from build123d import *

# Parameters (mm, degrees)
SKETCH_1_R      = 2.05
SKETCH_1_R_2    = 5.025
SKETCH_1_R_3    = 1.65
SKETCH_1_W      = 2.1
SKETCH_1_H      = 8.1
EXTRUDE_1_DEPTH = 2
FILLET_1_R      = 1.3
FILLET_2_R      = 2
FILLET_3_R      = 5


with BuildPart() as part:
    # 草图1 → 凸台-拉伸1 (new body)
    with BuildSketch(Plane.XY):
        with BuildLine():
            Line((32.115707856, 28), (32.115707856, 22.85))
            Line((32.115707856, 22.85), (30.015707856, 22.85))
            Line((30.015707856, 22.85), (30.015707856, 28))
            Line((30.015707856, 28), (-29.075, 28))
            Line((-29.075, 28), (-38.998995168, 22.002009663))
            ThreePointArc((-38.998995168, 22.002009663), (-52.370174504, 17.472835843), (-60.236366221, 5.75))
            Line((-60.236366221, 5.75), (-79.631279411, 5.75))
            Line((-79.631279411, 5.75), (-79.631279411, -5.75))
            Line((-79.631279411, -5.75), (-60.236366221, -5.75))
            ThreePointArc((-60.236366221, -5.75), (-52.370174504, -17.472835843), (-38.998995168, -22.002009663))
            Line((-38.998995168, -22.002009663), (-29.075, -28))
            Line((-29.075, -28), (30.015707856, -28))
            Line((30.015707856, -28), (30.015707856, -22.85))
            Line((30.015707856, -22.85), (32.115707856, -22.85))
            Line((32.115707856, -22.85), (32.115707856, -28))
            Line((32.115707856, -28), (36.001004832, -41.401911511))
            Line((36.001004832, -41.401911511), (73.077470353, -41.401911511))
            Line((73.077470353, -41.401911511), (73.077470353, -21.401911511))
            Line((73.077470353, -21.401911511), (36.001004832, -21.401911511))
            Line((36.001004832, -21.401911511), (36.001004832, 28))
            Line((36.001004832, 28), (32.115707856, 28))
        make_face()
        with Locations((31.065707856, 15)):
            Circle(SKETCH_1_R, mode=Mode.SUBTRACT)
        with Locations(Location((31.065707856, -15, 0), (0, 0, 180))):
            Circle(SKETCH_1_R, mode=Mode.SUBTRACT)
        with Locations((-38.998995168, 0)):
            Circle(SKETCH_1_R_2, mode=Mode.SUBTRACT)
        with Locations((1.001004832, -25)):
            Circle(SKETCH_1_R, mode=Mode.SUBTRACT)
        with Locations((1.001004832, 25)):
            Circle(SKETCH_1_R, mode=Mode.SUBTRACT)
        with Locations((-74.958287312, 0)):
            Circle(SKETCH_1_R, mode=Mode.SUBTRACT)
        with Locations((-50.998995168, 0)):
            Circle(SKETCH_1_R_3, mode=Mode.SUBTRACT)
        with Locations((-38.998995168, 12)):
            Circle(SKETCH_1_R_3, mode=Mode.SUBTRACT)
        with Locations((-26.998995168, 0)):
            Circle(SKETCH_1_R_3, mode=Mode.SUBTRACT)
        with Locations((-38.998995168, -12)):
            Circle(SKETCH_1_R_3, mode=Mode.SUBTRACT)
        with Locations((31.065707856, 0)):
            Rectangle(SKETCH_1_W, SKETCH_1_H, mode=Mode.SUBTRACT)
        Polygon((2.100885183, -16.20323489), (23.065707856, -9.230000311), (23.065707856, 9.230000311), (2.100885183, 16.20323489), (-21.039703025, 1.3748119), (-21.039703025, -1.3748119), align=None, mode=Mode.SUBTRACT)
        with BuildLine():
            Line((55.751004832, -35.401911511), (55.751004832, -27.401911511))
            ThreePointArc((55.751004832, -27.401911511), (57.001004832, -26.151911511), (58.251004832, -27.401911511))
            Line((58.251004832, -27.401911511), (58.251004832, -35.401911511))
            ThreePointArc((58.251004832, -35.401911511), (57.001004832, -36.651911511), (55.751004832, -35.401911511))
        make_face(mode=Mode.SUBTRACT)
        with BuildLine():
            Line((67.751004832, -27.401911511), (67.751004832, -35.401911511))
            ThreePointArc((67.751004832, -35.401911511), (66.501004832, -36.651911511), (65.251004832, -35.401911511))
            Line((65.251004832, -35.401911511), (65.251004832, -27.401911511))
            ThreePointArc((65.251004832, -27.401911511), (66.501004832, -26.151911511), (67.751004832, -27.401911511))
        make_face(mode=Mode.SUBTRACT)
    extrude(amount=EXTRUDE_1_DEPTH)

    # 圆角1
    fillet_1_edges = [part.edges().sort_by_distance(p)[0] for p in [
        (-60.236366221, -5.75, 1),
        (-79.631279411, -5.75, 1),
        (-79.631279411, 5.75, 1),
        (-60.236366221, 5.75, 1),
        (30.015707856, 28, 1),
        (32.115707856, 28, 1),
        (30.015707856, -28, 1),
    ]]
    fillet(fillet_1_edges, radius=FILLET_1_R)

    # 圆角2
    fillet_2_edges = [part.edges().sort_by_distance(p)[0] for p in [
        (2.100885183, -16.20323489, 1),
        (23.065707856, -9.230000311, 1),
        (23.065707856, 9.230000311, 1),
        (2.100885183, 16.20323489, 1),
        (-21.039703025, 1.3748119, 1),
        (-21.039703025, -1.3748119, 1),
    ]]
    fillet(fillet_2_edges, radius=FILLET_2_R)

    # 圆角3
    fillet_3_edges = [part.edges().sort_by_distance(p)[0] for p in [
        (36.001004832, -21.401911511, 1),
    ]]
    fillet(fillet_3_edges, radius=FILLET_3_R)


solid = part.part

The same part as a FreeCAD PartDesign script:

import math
import FreeCAD as App
import Part
import Sketcher
Q = App.Units.Quantity


def edges_at(feature, points):
    """Names of the edges that pass closest to the given points."""
    edges = feature.Shape.Edges
    near = lambda p: min(range(len(edges)), key=lambda i: edges[i].distToShape(Part.Vertex(*p))[0])
    return sorted({f"Edge{near(p) + 1}" for p in points})


def add_polygon(sketch, points):
    """Adds a closed chain of lines whose ends are joined by coincident constraints."""
    first, n = sketch.GeometryCount, len(points)
    for a, b in zip(points, points[1:] + points[:1]):
        sketch.addGeometry(Part.LineSegment(App.Vector(*a, 0), App.Vector(*b, 0)), False)
    for i in range(n):
        sketch.addConstraint(Sketcher.Constraint("Coincident", first + i, 2, first + (i + 1) % n, 1))

doc = App.newDocument("Part")
params = doc.addObject("Spreadsheet::Sheet", "Params")
for row, (alias, value) in enumerate([
    ("sketch1_diameter", "3.3 mm"),
    ("sketch1_diameter2", "4.1 mm"),
    ("sketch1_diameter3", "10.05 mm"),
    ("sketch1_height", "20 mm"),
    ("sketch1_height2", "8 mm"),
    ("pad1_length", "2 mm"),
    ("fillet_radius", "1.3 mm"),
    ("fillet2_radius", "2 mm"),
    ("fillet3_radius", "5 mm"),
], start=1):
    params.set(f"A{row}", alias)
    params.set(f"B{row}", "=" + value)
    params.setAlias(f"B{row}", alias)

body = doc.addObject("PartDesign::Body", "Body")

# Sketch on XY plane
sketch1 = body.newObject("Sketcher::SketchObject", "Sketch")
sketch1.AttachmentSupport = (doc.getObject("XY_Plane"), [""])
sketch1.MapMode = "FlatFace"
sketch1.addGeometry(Part.LineSegment(App.Vector(32.115708, 28, 0), App.Vector(32.115708, 22.85, 0)), False)  # 0
sketch1.addGeometry(Part.LineSegment(App.Vector(32.115708, 22.85, 0), App.Vector(30.015708, 22.85, 0)), False)  # 1
sketch1.addGeometry(Part.LineSegment(App.Vector(30.015708, 22.85, 0), App.Vector(30.015708, 28, 0)), False)  # 2
sketch1.addGeometry(Part.LineSegment(App.Vector(30.015708, 28, 0), App.Vector(-29.075, 28, 0)), False)  # 3
sketch1.addGeometry(Part.LineSegment(App.Vector(-29.075, 28, 0), App.Vector(-38.998995, 22.00201, 0)), False)  # 4
sketch1.addGeometry(Part.ArcOfCircle(Part.Circle(App.Vector(-38.998995, 0, 0), App.Vector(0, 0, 1), 22.00201), math.radians(90), math.radians(164.850426)), False)  # 5
sketch1.addGeometry(Part.LineSegment(App.Vector(-60.236366, 5.75, 0), App.Vector(-79.631279, 5.75, 0)), False)  # 6
sketch1.addGeometry(Part.LineSegment(App.Vector(-79.631279, 5.75, 0), App.Vector(-79.631279, -5.75, 0)), False)  # 7
sketch1.addGeometry(Part.LineSegment(App.Vector(-79.631279, -5.75, 0), App.Vector(-60.236366, -5.75, 0)), False)  # 8
sketch1.addGeometry(Part.ArcOfCircle(Part.Circle(App.Vector(-38.998995, 0, 0), App.Vector(0, 0, 1), 22.00201), math.radians(-164.850426), math.radians(-90)), False)  # 9
sketch1.addGeometry(Part.LineSegment(App.Vector(-38.998995, -22.00201, 0), App.Vector(-29.075, -28, 0)), False)  # 10
sketch1.addGeometry(Part.LineSegment(App.Vector(-29.075, -28, 0), App.Vector(30.015708, -28, 0)), False)  # 11
sketch1.addGeometry(Part.LineSegment(App.Vector(30.015708, -28, 0), App.Vector(30.015708, -22.85, 0)), False)  # 12
sketch1.addGeometry(Part.LineSegment(App.Vector(30.015708, -22.85, 0), App.Vector(32.115708, -22.85, 0)), False)  # 13
sketch1.addGeometry(Part.LineSegment(App.Vector(32.115708, -22.85, 0), App.Vector(32.115708, -28, 0)), False)  # 14
sketch1.addGeometry(Part.LineSegment(App.Vector(32.115708, -28, 0), App.Vector(36.001005, -41.401912, 0)), False)  # 15
sketch1.addGeometry(Part.LineSegment(App.Vector(36.001005, -41.401912, 0), App.Vector(73.07747, -41.401912, 0)), False)  # 16
sketch1.addGeometry(Part.LineSegment(App.Vector(73.07747, -41.401912, 0), App.Vector(73.07747, -21.401912, 0)), False)  # 17
sketch1.addGeometry(Part.LineSegment(App.Vector(73.07747, -21.401912, 0), App.Vector(36.001005, -21.401912, 0)), False)  # 18
sketch1.addGeometry(Part.LineSegment(App.Vector(36.001005, -21.401912, 0), App.Vector(36.001005, 28, 0)), False)  # 19
sketch1.addGeometry(Part.LineSegment(App.Vector(36.001005, 28, 0), App.Vector(32.115708, 28, 0)), False)  # 20
sketch1.addGeometry(Part.Circle(App.Vector(-38.998995, -12, 0), App.Vector(0, 0, 1), 1.65), False)  # 21
sketch1.addGeometry(Part.Circle(App.Vector(1.001005, -25, 0), App.Vector(0, 0, 1), 2.05), False)  # 22
sketch1.addGeometry(Part.ArcOfCircle(Part.Circle(App.Vector(57.001005, -35.401912, 0), App.Vector(0, 0, 1), 1.25), math.radians(180), math.radians(360)), False)  # 23
sketch1.addGeometry(Part.LineSegment(App.Vector(55.751005, -35.401912, 0), App.Vector(55.751005, -27.401912, 0)), False)  # 24
sketch1.addGeometry(Part.ArcOfCircle(Part.Circle(App.Vector(57.001005, -27.401912, 0), App.Vector(0, 0, 1), 1.25), math.radians(0), math.radians(180)), False)  # 25
sketch1.addGeometry(Part.LineSegment(App.Vector(58.251005, -27.401912, 0), App.Vector(58.251005, -35.401912, 0)), False)  # 26
sketch1.addGeometry(Part.ArcOfCircle(Part.Circle(App.Vector(66.501005, -27.401912, 0), App.Vector(0, 0, 1), 1.25), math.radians(0), math.radians(180)), False)  # 27
sketch1.addGeometry(Part.LineSegment(App.Vector(67.751005, -27.401912, 0), App.Vector(67.751005, -35.401912, 0)), False)  # 28
sketch1.addGeometry(Part.ArcOfCircle(Part.Circle(App.Vector(66.501005, -35.401912, 0), App.Vector(0, 0, 1), 1.25), math.radians(180), math.radians(360)), False)  # 29
sketch1.addGeometry(Part.LineSegment(App.Vector(65.251005, -35.401912, 0), App.Vector(65.251005, -27.401912, 0)), False)  # 30
sketch1.addGeometry(Part.Circle(App.Vector(31.065708, -15, 0), App.Vector(0, 0, 1), 2.05), False)  # 31
sketch1.addGeometry(Part.Circle(App.Vector(-74.958287, 0, 0), App.Vector(0, 0, 1), 2.05), False)  # 32
sketch1.addGeometry(Part.Circle(App.Vector(-50.998995, 0, 0), App.Vector(0, 0, 1), 1.65), False)  # 33
sketch1.addGeometry(Part.Circle(App.Vector(-38.998995, 0, 0), App.Vector(0, 0, 1), 5.025), False)  # 34
sketch1.addGeometry(Part.Circle(App.Vector(-26.998995, 0, 0), App.Vector(0, 0, 1), 1.65), False)  # 35
sketch1.addGeometry(Part.Circle(App.Vector(-38.998995, 12, 0), App.Vector(0, 0, 1), 1.65), False)  # 36
add_polygon(sketch1, [(23.065708, -9.23), (2.100885, -16.203235), (-21.039703, -1.374812), (-21.039703, 1.374812), (2.100885, 16.203235), (23.065708, 9.23)])  # lines 37-42
add_polygon(sketch1, [(32.115708, -4.05), (30.015708, -4.05), (30.015708, 4.05), (32.115708, 4.05)])  # lines 43-46
sketch1.addGeometry(Part.Circle(App.Vector(31.065708, 15, 0), App.Vector(0, 0, 1), 2.05), False)  # 47
sketch1.addGeometry(Part.Circle(App.Vector(1.001005, 25, 0), App.Vector(0, 0, 1), 2.05), False)  # 48
sketch1.addConstraint(Sketcher.Constraint("Coincident", 0, 2, 1, 1))
sketch1.addConstraint(Sketcher.Constraint("Coincident", 1, 2, 2, 1))
sketch1.addConstraint(Sketcher.Constraint("Coincident", 2, 2, 3, 1))
sketch1.addConstraint(Sketcher.Constraint("Coincident", 3, 2, 4, 1))
sketch1.addConstraint(Sketcher.Constraint("Coincident", 4, 2, 5, 1))
sketch1.addConstraint(Sketcher.Constraint("Coincident", 5, 2, 6, 1))
sketch1.addConstraint(Sketcher.Constraint("Coincident", 6, 2, 7, 1))
sketch1.addConstraint(Sketcher.Constraint("Coincident", 7, 2, 8, 1))
sketch1.addConstraint(Sketcher.Constraint("Coincident", 8, 2, 9, 1))
sketch1.addConstraint(Sketcher.Constraint("Coincident", 9, 2, 10, 1))
sketch1.addConstraint(Sketcher.Constraint("Coincident", 10, 2, 11, 1))
sketch1.addConstraint(Sketcher.Constraint("Coincident", 11, 2, 12, 1))
sketch1.addConstraint(Sketcher.Constraint("Coincident", 12, 2, 13, 1))
sketch1.addConstraint(Sketcher.Constraint("Coincident", 13, 2, 14, 1))
sketch1.addConstraint(Sketcher.Constraint("Coincident", 14, 2, 15, 1))
sketch1.addConstraint(Sketcher.Constraint("Coincident", 15, 2, 16, 1))
sketch1.addConstraint(Sketcher.Constraint("Coincident", 16, 2, 17, 1))
sketch1.addConstraint(Sketcher.Constraint("Coincident", 17, 2, 18, 1))
sketch1.addConstraint(Sketcher.Constraint("Coincident", 18, 2, 19, 1))
sketch1.addConstraint(Sketcher.Constraint("Coincident", 19, 2, 20, 1))
sketch1.addConstraint(Sketcher.Constraint("Coincident", 20, 2, 0, 1))
sketch1.addConstraint(Sketcher.Constraint("Tangent", 23, 1, 24, 1))
sketch1.addConstraint(Sketcher.Constraint("Tangent", 24, 2, 25, 2))
sketch1.addConstraint(Sketcher.Constraint("Tangent", 25, 1, 26, 1))
sketch1.addConstraint(Sketcher.Constraint("Tangent", 26, 2, 23, 2))
sketch1.addConstraint(Sketcher.Constraint("Tangent", 27, 1, 28, 1))
sketch1.addConstraint(Sketcher.Constraint("Tangent", 28, 2, 29, 2))
sketch1.addConstraint(Sketcher.Constraint("Tangent", 29, 1, 30, 1))
sketch1.addConstraint(Sketcher.Constraint("Tangent", 30, 2, 27, 2))
sketch1.addConstraint(Sketcher.Constraint("Vertical", 0))
sketch1.addConstraint(Sketcher.Constraint("Horizontal", 1))
sketch1.addConstraint(Sketcher.Constraint("Vertical", 2))
sketch1.addConstraint(Sketcher.Constraint("Horizontal", 3))
sketch1.addConstraint(Sketcher.Constraint("Horizontal", 6))
sketch1.addConstraint(Sketcher.Constraint("Vertical", 7))
sketch1.addConstraint(Sketcher.Constraint("Horizontal", 8))
sketch1.addConstraint(Sketcher.Constraint("Horizontal", 11))
sketch1.addConstraint(Sketcher.Constraint("Vertical", 12))
sketch1.addConstraint(Sketcher.Constraint("Horizontal", 13))
sketch1.addConstraint(Sketcher.Constraint("Vertical", 14))
sketch1.addConstraint(Sketcher.Constraint("Horizontal", 16))
sketch1.addConstraint(Sketcher.Constraint("Vertical", 17))
sketch1.addConstraint(Sketcher.Constraint("Horizontal", 18))
sketch1.addConstraint(Sketcher.Constraint("Vertical", 19))
sketch1.addConstraint(Sketcher.Constraint("Horizontal", 20))
sketch1.addConstraint(Sketcher.Constraint("Vertical", 24))
sketch1.addConstraint(Sketcher.Constraint("Vertical", 26))
sketch1.addConstraint(Sketcher.Constraint("Vertical", 28))
sketch1.addConstraint(Sketcher.Constraint("Vertical", 30))
sketch1.addConstraint(Sketcher.Constraint("Vertical", 39))
sketch1.addConstraint(Sketcher.Constraint("Vertical", 42))
sketch1.addConstraint(Sketcher.Constraint("Horizontal", 43))
sketch1.addConstraint(Sketcher.Constraint("Vertical", 44))
sketch1.addConstraint(Sketcher.Constraint("Horizontal", 45))
sketch1.addConstraint(Sketcher.Constraint("Vertical", 46))
sketch1.addConstraint(Sketcher.Constraint("Coincident", 9, 3, 5, 3))
sketch1.addConstraint(Sketcher.Constraint("Coincident", 34, 3, 5, 3))
sketch1.addConstraint(Sketcher.Constraint("Equal", 5, 9))
sketch1.addConstraint(Sketcher.Constraint("Equal", 25, 27))
sketch1.addConstraint(Sketcher.Constraint("Equal", 22, 31))
sketch1.addConstraint(Sketcher.Constraint("Equal", 31, 32))
sketch1.addConstraint(Sketcher.Constraint("Equal", 21, 33))
sketch1.addConstraint(Sketcher.Constraint("Equal", 33, 35))
sketch1.addConstraint(Sketcher.Constraint("Equal", 35, 36))
sketch1.addConstraint(Sketcher.Constraint("Equal", 32, 47))
sketch1.addConstraint(Sketcher.Constraint("Equal", 47, 48))
sketch1.addConstraint(Sketcher.Constraint("Symmetric", 21, 3, 36, 3, -1))
sketch1.addConstraint(Sketcher.Constraint("Symmetric", 31, 3, 47, 3, -1))
sketch1.addConstraint(Sketcher.Constraint("Symmetric", 22, 3, 48, 3, -1))
sketch1.addConstraint(Sketcher.Constraint("Symmetric", 5, 2, 8, 2, -1))
sketch1.addConstraint(Sketcher.Constraint("Symmetric", 3, 2, 10, 2, -1))
sketch1.addConstraint(Sketcher.Constraint("Symmetric", 1, 2, 12, 2, -1))
sketch1.addConstraint(Sketcher.Constraint("Symmetric", 14, 2, 20, 2, -1))
sketch1.addConstraint(Sketcher.Constraint("Symmetric", 37, 2, 40, 2, -1))
sketch1.addConstraint(Sketcher.Constraint("PointOnObject", 32, 3, -1))
sketch1.addConstraint(Sketcher.Constraint("PointOnObject", 33, 3, -1))
sketch1.addConstraint(Sketcher.Constraint("PointOnObject", 35, 3, -1))
sketch1.addConstraint(Sketcher.Constraint("Horizontal", 25, 3, 27, 3))
sketch1.addConstraint(Sketcher.Constraint("Horizontal", 23, 3, 29, 3))
sketch1.addConstraint(Sketcher.Constraint("Horizontal", 11, 2, 14, 2))
sketch1.addConstraint(Sketcher.Constraint("Vertical", 9, 3, 21, 3))
sketch1.addConstraint(Sketcher.Constraint("Vertical", 36, 3, 4, 2))
sketch1.addConstraint(Sketcher.Constraint("Vertical", 4, 2, 9, 2))
sketch1.addConstraint(Sketcher.Constraint("Vertical", 15, 2, 18, 2))
sketch1.addConstraint(Sketcher.Constraint("Vertical", 12, 2, 43, 2))
sketch1.addConstraint(Sketcher.Constraint("Vertical", 20, 2, 45, 2))
sketch1.addConstraint(Sketcher.Constraint("Equal", 38, 40))
sketch1.addConstraint(Sketcher.Constraint("Equal", 37, 41))
sketch1.addConstraint(Sketcher.Constraint("Diameter", 21, Q("3.3 mm")))
sketch1.addConstraint(Sketcher.Constraint("Diameter", 22, Q("4.1 mm")))
sketch1.addConstraint(Sketcher.Constraint("Diameter", 34, Q("10.05 mm")))
sketch1.addConstraint(Sketcher.Constraint("DistanceY", 17, 1, 17, 2, Q("20 mm")))
sketch1.addConstraint(Sketcher.Constraint("DistanceY", 24, 1, 24, 2, Q("8 mm")))
sketch1.addConstraint(Sketcher.Constraint("Radius", 23, Q("1.25 mm")))
sketch1.addConstraint(Sketcher.Constraint("DistanceX", 1, 2, 1, 1, Q("2.1 mm")))
sketch1.addConstraint(Sketcher.Constraint("DistanceY", 7, 2, 7, 1, Q("11.5 mm")))
sketch1.addConstraint(Sketcher.Constraint("DistanceY", 44, 1, 44, 2, Q("8.1 mm")))
sketch1.addConstraint(Sketcher.Constraint("DistanceY", 21, 3, -1, 1, Q("12 mm")))
sketch1.addConstraint(Sketcher.Constraint("DistanceY", 22, 3, -1, 1, Q("25 mm")))
sketch1.addConstraint(Sketcher.Constraint("DistanceY", 31, 3, -1, 1, Q("15 mm")))
sketch1.addConstraint(Sketcher.Constraint("DistanceY", -1, 1, 2, 2, Q("28 mm")))
sketch1.addConstraint(Sketcher.Constraint("DistanceX", 21, 3, 22, 3, Q("40 mm")))
sketch1.addConstraint(Sketcher.Constraint("DistanceX", 22, 3, 23, 3, Q("56 mm")))
sketch1.addConstraint(Sketcher.Constraint("DistanceX", 33, 3, 5, 3, Q("12 mm")))
sketch1.addConstraint(Sketcher.Constraint("DistanceX", 34, 3, 35, 3, Q("12 mm")))
sketch1.addConstraint(Sketcher.Constraint("DistanceX", 15, 2, 23, 3, Q("21 mm")))
sketch1.addConstraint(Sketcher.Constraint("DistanceY", 15, 2, 23, 3, Q("6 mm")))
sketch1.addConstraint(Sketcher.Constraint("DistanceX", 26, 2, 29, 1, Q("7 mm")))
sketch1.addConstraint(Sketcher.Constraint("DistanceX", 41, 2, 47, 3, Q("8 mm")))
sketch1.addConstraint(Sketcher.Constraint("DistanceY", 0, 2, 0, 1, Q("5.15 mm")))
sketch1.addConstraint(Sketcher.Constraint("DistanceY", 42, 2, 42, 1, Q("18.460001 mm")))
sketch1.addConstraint(Sketcher.Constraint("DistanceY", 12, 2, 43, 2, Q("18.8 mm")))
sketch1.addConstraint(Sketcher.Constraint("Radius", 5, Q("22.00201 mm")))
sketch1.addConstraint(Sketcher.Constraint("DistanceX", 47, 3, 0, 2, Q("1.05 mm")))
sketch1.addConstraint(Sketcher.Constraint("DistanceX", 3, 2, -1, 1, Q("29.075 mm")))
sketch1.addConstraint(Sketcher.Constraint("DistanceY", 19, 1, 19, 2, Q("49.401912 mm")))
sketch1.addConstraint(Sketcher.Constraint("DistanceX", 3, 2, 3, 1, Q("59.090708 mm")))
sketch1.addConstraint(Sketcher.Constraint("DistanceX", 6, 2, 6, 1, Q("19.394913 mm")))
sketch1.addConstraint(Sketcher.Constraint("DistanceX", 16, 1, 16, 2, Q("37.076466 mm")))
sketch1.addConstraint(Sketcher.Constraint("DistanceX", 20, 2, 20, 1, Q("3.885297 mm")))
sketch1.addConstraint(Sketcher.Constraint("DistanceY", 39, 1, 39, 2, Q("2.749624 mm")))
sketch1.addConstraint(Sketcher.Constraint("DistanceX", 32, 3, 5, 2, Q("14.721921 mm")))
sketch1.addConstraint(Sketcher.Constraint("DistanceX", 22, 3, 37, 2, Q("1.09988 mm")))
sketch1.addConstraint(Sketcher.Constraint("DistanceX", 39, 2, 40, 2, Q("23.140588 mm")))
sketch1.addConstraint(Sketcher.Constraint("Distance", 37, Q("22.094112 mm")))
sketch1.setExpression("Constraints[98]", "Params.sketch1_diameter")
sketch1.setExpression("Constraints[99]", "Params.sketch1_diameter2")
sketch1.setExpression("Constraints[100]", "Params.sketch1_diameter3")
sketch1.setExpression("Constraints[101]", "Params.sketch1_height")
sketch1.setExpression("Constraints[102]", "Params.sketch1_height2")
pad1 = body.newObject("PartDesign::Pad", "Pad")
pad1.Profile = sketch1
pad1.setExpression("Length", "Params.pad1_length")
doc.recompute()

fillet = body.newObject("PartDesign::Fillet", "Fillet")
fillet.Base = (pad1, edges_at(pad1, [
    (-60.236, -5.75, 1),
    (-79.631, -5.75, 1),
    (-79.631, 5.75, 1),
    (-60.236, 5.75, 1),
    (30.016, 28, 1),
    (32.116, 28, 1),
    (30.016, -28, 1),
]))
fillet.setExpression("Radius", "Params.fillet_radius")
doc.recompute()

fillet2 = body.newObject("PartDesign::Fillet", "Fillet001")
fillet2.Base = (fillet, edges_at(fillet, [
    (2.101, -16.203, 1),
    (23.066, -9.23, 1),
    (23.066, 9.23, 1),
    (2.101, 16.203, 1),
    (-21.04, 1.375, 1),
    (-21.04, -1.375, 1),
]))
fillet2.setExpression("Radius", "Params.fillet2_radius")
doc.recompute()

fillet3 = body.newObject("PartDesign::Fillet", "Fillet002")
fillet3.Base = (fillet2, edges_at(fillet2, [(36.001, -21.402, 1)]))
fillet3.setExpression("Radius", "Params.fillet3_radius")

doc.recompute()
